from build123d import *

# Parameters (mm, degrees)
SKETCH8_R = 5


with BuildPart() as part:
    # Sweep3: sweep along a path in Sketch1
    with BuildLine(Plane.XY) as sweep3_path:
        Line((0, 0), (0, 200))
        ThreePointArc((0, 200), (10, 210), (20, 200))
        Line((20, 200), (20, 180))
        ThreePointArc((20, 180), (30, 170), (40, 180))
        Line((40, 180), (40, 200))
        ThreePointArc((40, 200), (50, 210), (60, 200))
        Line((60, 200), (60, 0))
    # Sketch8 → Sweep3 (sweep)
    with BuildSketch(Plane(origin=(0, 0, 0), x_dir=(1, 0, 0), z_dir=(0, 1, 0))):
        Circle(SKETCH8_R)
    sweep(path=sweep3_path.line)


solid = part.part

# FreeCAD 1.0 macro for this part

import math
import FreeCAD as App
import Part
import Sketcher
from FreeCAD import Vector
Q = App.Units.Quantity

doc = App.newDocument("Part")
body = doc.addObject("PartDesign::Body", "Body")

sketch1 = body.newObject("Sketcher::SketchObject", "Sketch")
sketch1.AttachmentSupport = (doc.getObject("XZ_Plane"), [""])
sketch1.MapMode = "FlatFace"
sketch1.addGeometry(Part.Circle(Vector(0, 0, 0), Vector(0, 0, 1), 5), False)
sketch1.addConstraint([
    Sketcher.Constraint("Coincident", 0, 3, -1, 1),
    Sketcher.Constraint("Diameter", 0, Q("10 mm")),
])

sketch2 = body.newObject("Sketcher::SketchObject", "Sketch001")
sketch2.AttachmentSupport = (doc.getObject("XY_Plane"), [""])
sketch2.MapMode = "FlatFace"
sketch2.addGeometry([
    Part.LineSegment(Vector(0, 0, 0), Vector(0, 200, 0)),
    Part.ArcOfCircle(Part.Circle(Vector(10, 200, 0), Vector(0, 0, 1), 10), math.radians(0), math.radians(180)),
    Part.LineSegment(Vector(20, 200, 0), Vector(20, 180, 0)),
    Part.ArcOfCircle(Part.Circle(Vector(30, 180, 0), Vector(0, 0, 1), 10), math.radians(180), math.radians(360)),
    Part.LineSegment(Vector(40, 180, 0), Vector(40, 200, 0)),
    Part.ArcOfCircle(Part.Circle(Vector(50, 200, 0), Vector(0, 0, 1), 10), math.radians(0), math.radians(180)),
    Part.LineSegment(Vector(60, 200, 0), Vector(60, 0, 0)),
], False)
sketch2.addConstraint([
    Sketcher.Constraint("Tangent", 0, 2, 1, 2),
    Sketcher.Constraint("Tangent", 1, 1, 2, 1),
    Sketcher.Constraint("Tangent", 2, 2, 3, 1),
    Sketcher.Constraint("Tangent", 3, 2, 4, 1),
    Sketcher.Constraint("Tangent", 4, 2, 5, 2),
    Sketcher.Constraint("Tangent", 5, 1, 6, 1),
    Sketcher.Constraint("Vertical", 0),
    Sketcher.Constraint("Vertical", 2),
    Sketcher.Constraint("Vertical", 4),
    Sketcher.Constraint("Vertical", 6),
    Sketcher.Constraint("Coincident", 0, 1, -1, 1),
    Sketcher.Constraint("Equal", 1, 3),
    Sketcher.Constraint("Equal", 3, 5),
    Sketcher.Constraint("PointOnObject", 6, 2, -1),
    Sketcher.Constraint("Horizontal", 1, 3, 5, 3),
    Sketcher.Constraint("Radius", 1, Q("10 mm")),
    Sketcher.Constraint("DistanceY", 0, 1, 0, 2, Q("200 mm")),
    Sketcher.Constraint("DistanceY", 2, 2, 2, 1, Q("20 mm")),
])
doc.recompute()

additivepipe = body.newObject("PartDesign::AdditivePipe", "AdditivePipe")
additivepipe.Profile = sketch1
additivepipe.Spine = (sketch2, ["Edge1", "Edge2", "Edge3", "Edge4", "Edge5", "Edge6", "Edge7"])

doc.recompute()
